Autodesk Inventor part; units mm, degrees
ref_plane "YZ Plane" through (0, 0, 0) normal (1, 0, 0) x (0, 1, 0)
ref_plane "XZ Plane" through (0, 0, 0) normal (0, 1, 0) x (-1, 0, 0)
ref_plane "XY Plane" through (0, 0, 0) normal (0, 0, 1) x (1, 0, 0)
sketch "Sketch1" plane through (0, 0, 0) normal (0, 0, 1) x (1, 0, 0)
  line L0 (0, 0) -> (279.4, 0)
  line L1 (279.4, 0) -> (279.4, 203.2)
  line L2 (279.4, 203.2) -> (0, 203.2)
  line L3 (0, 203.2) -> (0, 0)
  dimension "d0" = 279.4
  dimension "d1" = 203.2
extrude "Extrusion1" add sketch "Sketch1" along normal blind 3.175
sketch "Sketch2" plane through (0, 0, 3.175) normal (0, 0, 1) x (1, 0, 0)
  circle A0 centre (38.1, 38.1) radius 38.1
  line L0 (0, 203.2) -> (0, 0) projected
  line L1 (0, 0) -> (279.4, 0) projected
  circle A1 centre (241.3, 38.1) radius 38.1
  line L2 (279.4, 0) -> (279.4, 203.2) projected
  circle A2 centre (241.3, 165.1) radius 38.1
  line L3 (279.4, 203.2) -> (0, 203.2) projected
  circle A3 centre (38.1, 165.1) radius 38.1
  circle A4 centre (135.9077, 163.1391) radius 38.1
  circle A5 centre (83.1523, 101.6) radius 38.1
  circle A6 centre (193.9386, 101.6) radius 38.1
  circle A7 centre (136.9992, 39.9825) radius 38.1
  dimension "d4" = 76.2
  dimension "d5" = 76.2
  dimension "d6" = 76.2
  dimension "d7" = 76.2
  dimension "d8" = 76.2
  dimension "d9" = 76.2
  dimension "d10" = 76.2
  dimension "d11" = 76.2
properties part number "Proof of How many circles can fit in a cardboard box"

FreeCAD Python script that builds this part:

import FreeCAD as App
import Part
import Sketcher

V = App.Vector
Q = App.Units.Quantity

doc = App.newDocument("Part")
body = doc.addObject("PartDesign::Body", "Body")

# Sketch on XY plane
sketch1 = body.newObject("Sketcher::SketchObject", "Sketch")
sketch1.AttachmentSupport = (doc.getObject("XY_Plane"), [""])
sketch1.MapMode = "FlatFace"
sketch1.addGeometry(Part.LineSegment(V(0, 203, 0), V(0, 0, 0)), False)
sketch1.addGeometry(Part.LineSegment(V(0, 0, 0), V(279, 0, 0)), False)
sketch1.addGeometry(Part.LineSegment(V(279, 0, 0), V(279, 203, 0)), False)
sketch1.addGeometry(Part.LineSegment(V(279, 203, 0), V(0, 203, 0)), False)
sketch1.addConstraint(Sketcher.Constraint("Coincident", 0, 2, 1, 1))
sketch1.addConstraint(Sketcher.Constraint("Coincident", 1, 2, 2, 1))
sketch1.addConstraint(Sketcher.Constraint("Coincident", 2, 2, 3, 1))
sketch1.addConstraint(Sketcher.Constraint("Coincident", 3, 2, 0, 1))
sketch1.addConstraint(Sketcher.Constraint("Vertical", 0))
sketch1.addConstraint(Sketcher.Constraint("Horizontal", 1))
sketch1.addConstraint(Sketcher.Constraint("Vertical", 2))
sketch1.addConstraint(Sketcher.Constraint("Horizontal", 3))
sketch1.addConstraint(Sketcher.Constraint("Coincident", 0, 2, -1, 1))
sketch1.addConstraint(Sketcher.Constraint("DistanceX", 1, 1, 1, 2, Q("11 in")))
sketch1.addConstraint(Sketcher.Constraint("DistanceY", 0, 2, 0, 1, Q("8 in")))
pad1 = body.newObject("PartDesign::Pad", "Pad")
pad1.Profile = sketch1
pad1.Length = Q("0.125 in")

doc.recompute()
